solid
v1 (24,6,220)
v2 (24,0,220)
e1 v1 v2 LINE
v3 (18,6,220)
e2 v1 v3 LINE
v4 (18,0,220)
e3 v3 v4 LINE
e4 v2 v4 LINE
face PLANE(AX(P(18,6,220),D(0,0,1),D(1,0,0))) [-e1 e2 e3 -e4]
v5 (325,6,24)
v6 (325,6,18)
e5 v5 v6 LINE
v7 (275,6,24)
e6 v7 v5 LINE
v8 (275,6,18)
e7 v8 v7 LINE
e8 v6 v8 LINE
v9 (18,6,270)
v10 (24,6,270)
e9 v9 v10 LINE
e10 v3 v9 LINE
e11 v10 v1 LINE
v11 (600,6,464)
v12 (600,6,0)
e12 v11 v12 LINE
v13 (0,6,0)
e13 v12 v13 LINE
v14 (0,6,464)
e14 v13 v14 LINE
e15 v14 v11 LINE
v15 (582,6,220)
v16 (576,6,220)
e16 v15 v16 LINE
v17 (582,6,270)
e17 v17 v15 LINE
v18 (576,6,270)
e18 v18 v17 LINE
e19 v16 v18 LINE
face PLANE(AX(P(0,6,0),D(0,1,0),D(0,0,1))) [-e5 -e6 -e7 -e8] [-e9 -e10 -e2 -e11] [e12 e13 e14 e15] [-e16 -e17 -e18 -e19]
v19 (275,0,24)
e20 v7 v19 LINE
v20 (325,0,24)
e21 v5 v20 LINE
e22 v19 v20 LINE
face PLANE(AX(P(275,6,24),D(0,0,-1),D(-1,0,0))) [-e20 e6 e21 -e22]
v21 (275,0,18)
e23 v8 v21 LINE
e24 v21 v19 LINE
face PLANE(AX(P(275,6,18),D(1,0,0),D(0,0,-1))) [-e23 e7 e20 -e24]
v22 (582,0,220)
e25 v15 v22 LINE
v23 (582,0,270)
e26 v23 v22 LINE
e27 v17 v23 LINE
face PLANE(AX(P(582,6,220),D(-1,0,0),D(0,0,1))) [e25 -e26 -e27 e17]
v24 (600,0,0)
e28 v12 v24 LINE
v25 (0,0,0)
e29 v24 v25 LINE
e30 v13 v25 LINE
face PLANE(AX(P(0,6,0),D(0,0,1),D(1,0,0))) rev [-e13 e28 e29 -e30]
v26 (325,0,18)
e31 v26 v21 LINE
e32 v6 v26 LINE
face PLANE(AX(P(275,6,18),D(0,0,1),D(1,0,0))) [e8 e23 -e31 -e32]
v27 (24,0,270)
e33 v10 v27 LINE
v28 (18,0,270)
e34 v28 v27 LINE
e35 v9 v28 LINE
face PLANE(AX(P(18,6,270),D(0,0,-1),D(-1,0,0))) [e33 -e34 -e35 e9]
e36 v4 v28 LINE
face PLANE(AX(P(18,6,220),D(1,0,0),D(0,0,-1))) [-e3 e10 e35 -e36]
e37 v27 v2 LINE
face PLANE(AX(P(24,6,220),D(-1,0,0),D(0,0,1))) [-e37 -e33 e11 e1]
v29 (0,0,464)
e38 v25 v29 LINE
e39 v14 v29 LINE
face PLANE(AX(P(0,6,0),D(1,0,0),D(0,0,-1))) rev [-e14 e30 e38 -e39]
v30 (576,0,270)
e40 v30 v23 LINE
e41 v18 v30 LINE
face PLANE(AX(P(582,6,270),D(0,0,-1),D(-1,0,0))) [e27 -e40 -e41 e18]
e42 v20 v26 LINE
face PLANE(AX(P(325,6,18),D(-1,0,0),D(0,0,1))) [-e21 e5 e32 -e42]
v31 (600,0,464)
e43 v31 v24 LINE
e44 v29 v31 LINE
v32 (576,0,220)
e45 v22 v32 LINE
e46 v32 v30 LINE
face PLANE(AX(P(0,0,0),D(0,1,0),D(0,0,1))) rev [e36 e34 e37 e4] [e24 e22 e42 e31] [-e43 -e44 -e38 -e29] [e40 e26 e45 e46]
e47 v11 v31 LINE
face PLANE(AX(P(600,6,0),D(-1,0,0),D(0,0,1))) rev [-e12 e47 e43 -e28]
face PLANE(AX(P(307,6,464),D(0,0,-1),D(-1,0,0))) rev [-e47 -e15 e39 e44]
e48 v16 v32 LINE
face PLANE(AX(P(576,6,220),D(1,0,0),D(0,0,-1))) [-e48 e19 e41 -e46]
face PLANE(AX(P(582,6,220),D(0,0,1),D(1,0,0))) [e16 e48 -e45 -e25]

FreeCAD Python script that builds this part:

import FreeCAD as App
import Part
import Sketcher

doc = App.newDocument("Part")
params = doc.addObject("Spreadsheet::Sheet", "Params")
for row, (alias, value) in enumerate([
    ("sketch1_width", "600 mm"),
    ("sketch1_width2", "6 mm"),
    ("sketch1_width3", "50 mm"),
    ("sketch1_height", "464 mm"),
    ("pad1_length", "6 mm"),
], start=1):
    params.set(f"A{row}", alias)
    params.set(f"B{row}", "=" + value)
    params.setAlias(f"B{row}", alias)

body = doc.addObject("PartDesign::Body", "Body")

sketch1 = doc.addObject("Sketcher::SketchObject", "Sketch")
body.addObject(sketch1)
sketch1.AttachmentSupport = (doc.XZ_Plane, [""])
sketch1.MapMode = "FlatFace"
sketch1.addGeometry([
    Part.LineSegment(App.Vector(600, 0, 0), App.Vector(0, 0, 0)),
    Part.LineSegment(App.Vector(0, 0, 0), App.Vector(0, 464, 0)),
    Part.LineSegment(App.Vector(0, 464, 0), App.Vector(600, 464, 0)),
    Part.LineSegment(App.Vector(600, 464, 0), App.Vector(600, 0, 0)),
    Part.LineSegment(App.Vector(576, 270, 0), App.Vector(576, 220, 0)),
    Part.LineSegment(App.Vector(576, 220, 0), App.Vector(582, 220, 0)),
    Part.LineSegment(App.Vector(582, 220, 0), App.Vector(582, 270, 0)),
    Part.LineSegment(App.Vector(582, 270, 0), App.Vector(576, 270, 0)),
    Part.LineSegment(App.Vector(18, 270, 0), App.Vector(18, 220, 0)),
    Part.LineSegment(App.Vector(18, 220, 0), App.Vector(24, 220, 0)),
    Part.LineSegment(App.Vector(24, 220, 0), App.Vector(24, 270, 0)),
    Part.LineSegment(App.Vector(24, 270, 0), App.Vector(18, 270, 0)),
    Part.LineSegment(App.Vector(275, 24, 0), App.Vector(275, 18, 0)),
    Part.LineSegment(App.Vector(275, 18, 0), App.Vector(325, 18, 0)),
    Part.LineSegment(App.Vector(325, 18, 0), App.Vector(325, 24, 0)),
    Part.LineSegment(App.Vector(325, 24, 0), App.Vector(275, 24, 0)),
], False)
sketch1.addConstraint([
    Sketcher.Constraint("Coincident", 0, 2, 1, 1),
    Sketcher.Constraint("Coincident", 1, 2, 2, 1),
    Sketcher.Constraint("Coincident", 2, 2, 3, 1),
    Sketcher.Constraint("Coincident", 3, 2, 0, 1),
    Sketcher.Constraint("Coincident", 4, 2, 5, 1),
    Sketcher.Constraint("Coincident", 5, 2, 6, 1),
    Sketcher.Constraint("Coincident", 6, 2, 7, 1),
    Sketcher.Constraint("Coincident", 7, 2, 4, 1),
    Sketcher.Constraint("Coincident", 8, 2, 9, 1),
    Sketcher.Constraint("Coincident", 9, 2, 10, 1),
    Sketcher.Constraint("Coincident", 10, 2, 11, 1),
    Sketcher.Constraint("Coincident", 11, 2, 8, 1),
    Sketcher.Constraint("Coincident", 12, 2, 13, 1),
    Sketcher.Constraint("Coincident", 13, 2, 14, 1),
    Sketcher.Constraint("Coincident", 14, 2, 15, 1),
    Sketcher.Constraint("Coincident", 15, 2, 12, 1),
    Sketcher.Constraint("Horizontal", 0),
    Sketcher.Constraint("Vertical", 1),
    Sketcher.Constraint("Horizontal", 2),
    Sketcher.Constraint("Vertical", 3),
    Sketcher.Constraint("Vertical", 4),
    Sketcher.Constraint("Horizontal", 5),
    Sketcher.Constraint("Vertical", 6),
    Sketcher.Constraint("Horizontal", 7),
    Sketcher.Constraint("Vertical", 8),
    Sketcher.Constraint("Horizontal", 9),
    Sketcher.Constraint("Vertical", 10),
    Sketcher.Constraint("Horizontal", 11),
    Sketcher.Constraint("Vertical", 12),
    Sketcher.Constraint("Horizontal", 13),
    Sketcher.Constraint("Vertical", 14),
    Sketcher.Constraint("Horizontal", 15),
    Sketcher.Constraint("Coincident", 0, 2, -1, 1),
    Sketcher.Constraint("Horizontal", 5, 2, 8, 2),
    Sketcher.Constraint("Horizontal", 7, 2, 10, 2),
    Sketcher.Constraint("Equal", 7, 9),
    Sketcher.Constraint("Equal", 15, 4),
    Sketcher.Constraint("Equal", 11, 12),
    Sketcher.Constraint("DistanceX", 0, 2, 0, 1, 600.0),
    Sketcher.Constraint("DistanceX", 5, 1, 5, 2, 6.0),
    Sketcher.Constraint("DistanceX", 13, 1, 13, 2, 50.0),
    Sketcher.Constraint("DistanceY", 1, 1, 1, 2, 464.0),
    Sketcher.Constraint("DistanceX", -1, 1, 4, 2, 576.0),
    Sketcher.Constraint("DistanceY", -1, 1, 4, 2, 220.0),
    Sketcher.Constraint("DistanceX", -1, 1, 8, 2, 18.0),
    Sketcher.Constraint("DistanceX", -1, 1, 12, 2, 275.0),
    Sketcher.Constraint("DistanceY", -1, 1, 12, 2, 18.0),
])
sketch1.setExpression("Constraints[38]", "Params.sketch1_width")
sketch1.setExpression("Constraints[39]", "Params.sketch1_width2")
sketch1.setExpression("Constraints[40]", "Params.sketch1_width3")
sketch1.setExpression("Constraints[41]", "Params.sketch1_height")
pad1 = doc.addObject("PartDesign::Pad", "Pad")
body.addObject(pad1)
pad1.Profile = sketch1
pad1.setExpression("Length", "Params.pad1_length")
pad1.Reversed = True

doc.recompute()
